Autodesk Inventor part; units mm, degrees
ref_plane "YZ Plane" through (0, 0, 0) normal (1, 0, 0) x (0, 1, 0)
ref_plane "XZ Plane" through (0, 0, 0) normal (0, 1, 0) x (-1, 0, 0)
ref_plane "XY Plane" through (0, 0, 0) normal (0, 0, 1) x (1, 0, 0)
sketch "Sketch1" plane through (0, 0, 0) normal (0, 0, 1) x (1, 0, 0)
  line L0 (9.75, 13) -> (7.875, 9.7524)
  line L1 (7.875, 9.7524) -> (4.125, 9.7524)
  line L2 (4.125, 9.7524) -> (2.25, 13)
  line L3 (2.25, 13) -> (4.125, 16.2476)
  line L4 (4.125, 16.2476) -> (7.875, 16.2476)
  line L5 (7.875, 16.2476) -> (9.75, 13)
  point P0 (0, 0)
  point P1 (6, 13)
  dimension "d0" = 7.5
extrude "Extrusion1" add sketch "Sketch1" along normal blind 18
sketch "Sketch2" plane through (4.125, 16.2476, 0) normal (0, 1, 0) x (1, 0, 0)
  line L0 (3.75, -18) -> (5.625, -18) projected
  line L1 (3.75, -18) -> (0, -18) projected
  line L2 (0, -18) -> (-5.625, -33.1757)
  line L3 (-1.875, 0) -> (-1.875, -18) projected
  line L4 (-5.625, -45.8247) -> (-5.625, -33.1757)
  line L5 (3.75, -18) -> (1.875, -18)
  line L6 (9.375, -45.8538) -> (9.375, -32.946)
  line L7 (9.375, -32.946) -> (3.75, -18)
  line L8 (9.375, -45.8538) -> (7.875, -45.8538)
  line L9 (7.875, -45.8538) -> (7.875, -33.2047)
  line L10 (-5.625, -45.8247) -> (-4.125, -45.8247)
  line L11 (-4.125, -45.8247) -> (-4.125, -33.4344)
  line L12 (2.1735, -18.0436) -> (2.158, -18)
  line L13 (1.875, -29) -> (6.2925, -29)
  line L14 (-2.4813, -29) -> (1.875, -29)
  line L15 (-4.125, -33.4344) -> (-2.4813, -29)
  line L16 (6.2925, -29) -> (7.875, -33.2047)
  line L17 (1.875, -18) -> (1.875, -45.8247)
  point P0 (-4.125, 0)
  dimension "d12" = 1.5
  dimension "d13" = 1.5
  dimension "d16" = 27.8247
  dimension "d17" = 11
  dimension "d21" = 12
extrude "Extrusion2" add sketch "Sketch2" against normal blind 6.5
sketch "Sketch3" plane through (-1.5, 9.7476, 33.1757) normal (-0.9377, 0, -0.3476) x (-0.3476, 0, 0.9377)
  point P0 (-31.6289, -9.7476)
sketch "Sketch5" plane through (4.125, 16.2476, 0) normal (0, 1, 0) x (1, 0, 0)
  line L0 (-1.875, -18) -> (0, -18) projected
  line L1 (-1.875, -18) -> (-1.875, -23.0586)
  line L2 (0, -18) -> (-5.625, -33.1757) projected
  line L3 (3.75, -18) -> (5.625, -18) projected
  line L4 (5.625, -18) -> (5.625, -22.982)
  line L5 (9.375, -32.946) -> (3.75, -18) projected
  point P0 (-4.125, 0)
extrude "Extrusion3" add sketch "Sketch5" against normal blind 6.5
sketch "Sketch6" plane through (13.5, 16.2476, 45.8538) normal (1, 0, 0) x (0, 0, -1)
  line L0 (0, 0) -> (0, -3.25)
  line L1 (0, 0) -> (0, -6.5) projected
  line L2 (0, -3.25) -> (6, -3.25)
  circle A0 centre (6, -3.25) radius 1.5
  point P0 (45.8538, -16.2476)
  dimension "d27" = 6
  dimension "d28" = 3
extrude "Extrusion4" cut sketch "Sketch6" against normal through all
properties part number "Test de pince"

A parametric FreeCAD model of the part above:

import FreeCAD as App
import Part
import Sketcher
Q = App.Units.Quantity

doc = App.newDocument("Part")
params = doc.addObject("Spreadsheet::Sheet", "Params")
for row, (alias, value) in enumerate([
    ("sketch1_width", "3.75 mm"),
    ("pad1_length", "18 mm"),
    ("sketch2_width", "1.5 mm"),
    ("sketch2_width2", "3.75 mm"),
    ("pad2_length", "6.5 mm"),
    ("pad3_length", "6.5 mm"),
    ("sketch4_diameter", "3 mm"),
], start=1):
    params.set(f"A{row}", alias)
    params.set(f"B{row}", "=" + value)
    params.setAlias(f"B{row}", alias)

body = doc.addObject("PartDesign::Body", "Body")

sketch1 = body.newObject("Sketcher::SketchObject", "Sketch")
sketch1.AttachmentSupport = (doc.getObject("XY_Plane"), [""])
sketch1.MapMode = "FlatFace"
sketch1.addGeometry([
    Part.LineSegment(App.Vector(7.875, 9.7524, 0), App.Vector(9.75, 13, 0)),
    Part.LineSegment(App.Vector(9.75, 13, 0), App.Vector(7.875, 16.2476, 0)),
    Part.LineSegment(App.Vector(7.875, 16.2476, 0), App.Vector(4.125, 16.2476, 0)),
    Part.LineSegment(App.Vector(4.125, 16.2476, 0), App.Vector(2.25, 13, 0)),
    Part.LineSegment(App.Vector(2.25, 13, 0), App.Vector(4.125, 9.7524, 0)),
    Part.LineSegment(App.Vector(4.125, 9.7524, 0), App.Vector(7.875, 9.7524, 0)),
], False)
sketch1.addConstraint([
    Sketcher.Constraint("Coincident", 0, 2, 1, 1),
    Sketcher.Constraint("Coincident", 1, 2, 2, 1),
    Sketcher.Constraint("Coincident", 2, 2, 3, 1),
    Sketcher.Constraint("Coincident", 3, 2, 4, 1),
    Sketcher.Constraint("Coincident", 4, 2, 5, 1),
    Sketcher.Constraint("Coincident", 5, 2, 0, 1),
    Sketcher.Constraint("Horizontal", 2),
    Sketcher.Constraint("Horizontal", 5),
    Sketcher.Constraint("Parallel", 0, 3),
    Sketcher.Constraint("Parallel", 1, 4),
    Sketcher.Constraint("Horizontal", 0, 2, 3, 2),
    Sketcher.Constraint("Vertical", 2, 2, 4, 2),
    Sketcher.Constraint("Vertical", 1, 2, 5, 2),
    Sketcher.Constraint("DistanceX", 3, 2, 0, 2, Q("7.5 mm")),
    Sketcher.Constraint("Angle", 0, Q("60 deg")),
    Sketcher.Constraint("DistanceY", -1, 1, 0, 2, Q("13 mm")),
    Sketcher.Constraint("DistanceX", 2, 2, 2, 1, Q("3.75 mm")),
    Sketcher.Constraint("DistanceX", -1, 1, 0, 2, Q("9.75 mm")),
])
sketch1.setExpression("Constraints[16]", "Params.sketch1_width")
pad1 = body.newObject("PartDesign::Pad", "Pad")
pad1.Profile = sketch1
pad1.setExpression("Length", "Params.pad1_length")

sketch2 = body.newObject("Sketcher::SketchObject", "Sketch001")
sketch2.AttachmentSupport = (doc.getObject("XZ_Plane"), [""])
sketch2.MapMode = "FlatFace"
sketch2.AttachmentOffset = App.Placement(App.Vector(0, 0, -16.2476), App.Rotation())
sketch2.addGeometry([
    Part.LineSegment(App.Vector(13.5, 32.946, 0), App.Vector(7.875, 18, 0)),
    Part.LineSegment(App.Vector(7.875, 18, 0), App.Vector(4.125, 18, 0)),
    Part.LineSegment(App.Vector(4.125, 18, 0), App.Vector(-1.5, 33.1757, 0)),
    Part.LineSegment(App.Vector(-1.5, 33.1757, 0), App.Vector(-1.5, 45.8247, 0)),
    Part.LineSegment(App.Vector(-1.5, 45.8247, 0), App.Vector(0, 45.8247, 0)),
    Part.LineSegment(App.Vector(0, 45.8247, 0), App.Vector(0, 33.4344, 0)),
    Part.LineSegment(App.Vector(0, 33.4344, 0), App.Vector(1.6437, 29, 0)),
    Part.LineSegment(App.Vector(1.6437, 29, 0), App.Vector(10.4175, 29, 0)),
    Part.LineSegment(App.Vector(10.4175, 29, 0), App.Vector(12, 33.2047, 0)),
    Part.LineSegment(App.Vector(12, 33.2047, 0), App.Vector(12, 45.8538, 0)),
    Part.LineSegment(App.Vector(12, 45.8538, 0), App.Vector(13.5, 45.8538, 0)),
    Part.LineSegment(App.Vector(13.5, 45.8538, 0), App.Vector(13.5, 32.946, 0)),
], False)
sketch2.addConstraint([
    Sketcher.Constraint("Coincident", 0, 2, 1, 1),
    Sketcher.Constraint("Coincident", 1, 2, 2, 1),
    Sketcher.Constraint("Coincident", 2, 2, 3, 1),
    Sketcher.Constraint("Coincident", 3, 2, 4, 1),
    Sketcher.Constraint("Coincident", 4, 2, 5, 1),
    Sketcher.Constraint("Coincident", 5, 2, 6, 1),
    Sketcher.Constraint("Coincident", 6, 2, 7, 1),
    Sketcher.Constraint("Coincident", 7, 2, 8, 1),
    Sketcher.Constraint("Coincident", 8, 2, 9, 1),
    Sketcher.Constraint("Coincident", 9, 2, 10, 1),
    Sketcher.Constraint("Coincident", 10, 2, 11, 1),
    Sketcher.Constraint("Coincident", 11, 2, 0, 1),
    Sketcher.Constraint("Horizontal", 1),
    Sketcher.Constraint("Vertical", 3),
    Sketcher.Constraint("Horizontal", 4),
    Sketcher.Constraint("Vertical", 5),
    Sketcher.Constraint("Horizontal", 7),
    Sketcher.Constraint("Vertical", 9),
    Sketcher.Constraint("Horizontal", 10),
    Sketcher.Constraint("Vertical", 11),
    Sketcher.Constraint("PointOnObject", 4, 2, -2),
    Sketcher.Constraint("Parallel", 2, 6),
    Sketcher.Constraint("Parallel", 0, 8),
    Sketcher.Constraint("Equal", 4, 10),
    Sketcher.Constraint("Equal", 3, 9),
    Sketcher.Constraint("DistanceX", 4, 1, 4, 2, Q("1.5 mm")),
    Sketcher.Constraint("DistanceX", -1, 1, 8, 2, Q("12 mm")),
    Sketcher.Constraint("DistanceY", 1, 2, 6, 2, Q("11 mm")),
    Sketcher.Constraint("DistanceY", -1, 1, 0, 2, Q("18 mm")),
    Sketcher.Constraint("DistanceX", 1, 2, 1, 1, Q("3.75 mm")),
    Sketcher.Constraint("DistanceY", 1, 2, 3, 2, Q("27.8247 mm")),
    Sketcher.Constraint("DistanceY", 3, 1, 3, 2, Q("12.649 mm")),
    Sketcher.Constraint("DistanceX", 7, 1, 7, 2, Q("8.7738 mm")),
    Sketcher.Constraint("DistanceY", 5, 2, 5, 1, Q("12.3903 mm")),
    Sketcher.Constraint("DistanceY", 11, 2, 11, 1, Q("12.9078 mm")),
    Sketcher.Constraint("DistanceX", -1, 1, 0, 2, Q("7.875 mm")),
])
sketch2.setExpression("Constraints[25]", "Params.sketch2_width")
sketch2.setExpression("Constraints[29]", "Params.sketch2_width2")
pad2 = body.newObject("PartDesign::Pad", "Pad001")
pad2.Profile = sketch2
pad2.setExpression("Length", "Params.pad2_length")

sketch3 = body.newObject("Sketcher::SketchObject", "Sketch002")
sketch3.AttachmentSupport = (doc.getObject("XZ_Plane"), [""])
sketch3.MapMode = "FlatFace"
sketch3.AttachmentOffset = App.Placement(App.Vector(0, 0, -16.2476), App.Rotation())
sketch3.addGeometry([
    Part.LineSegment(App.Vector(4.125, 18, 0), App.Vector(2.25, 18, 0)),
    Part.LineSegment(App.Vector(2.25, 18, 0), App.Vector(2.25, 23.0586, 0)),
    Part.LineSegment(App.Vector(2.249989, 23.058596, 0), App.Vector(4.125, 18, 0)),
    Part.LineSegment(App.Vector(9.75, 18, 0), App.Vector(7.875, 18, 0)),
    Part.LineSegment(App.Vector(7.875, 18, 0), App.Vector(9.75, 22.982, 0)),
    Part.LineSegment(App.Vector(9.75, 22.982, 0), App.Vector(9.75, 18, 0)),
], False)
sketch3.addConstraint([
    Sketcher.Constraint("Coincident", 0, 2, 1, 1),
    Sketcher.Constraint("Coincident", 1, 2, 2, 1),
    Sketcher.Constraint("Coincident", 2, 2, 0, 1),
    Sketcher.Constraint("Coincident", 3, 2, 4, 1),
    Sketcher.Constraint("Coincident", 4, 2, 5, 1),
    Sketcher.Constraint("Coincident", 5, 2, 3, 1),
    Sketcher.Constraint("Horizontal", 0),
    Sketcher.Constraint("Vertical", 1),
    Sketcher.Constraint("Horizontal", 3),
    Sketcher.Constraint("Vertical", 5),
    Sketcher.Constraint("Horizontal", 2, 2, 3, 2),
    Sketcher.Constraint("Equal", 0, 3),
    Sketcher.Constraint("DistanceY", -1, 1, 0, 2, Q("18 mm")),
    Sketcher.Constraint("DistanceX", 1, 2, 4, 2, Q("7.5 mm")),
    Sketcher.Constraint("DistanceX", 0, 2, 0, 1, Q("1.875 mm")),
    Sketcher.Constraint("DistanceY", 5, 2, 5, 1, Q("4.982 mm")),
    Sketcher.Constraint("DistanceX", -1, 1, 0, 2, Q("2.25 mm")),
    Sketcher.Constraint("Distance", 2, Q("5.395 mm")),
])
pad3 = body.newObject("PartDesign::Pad", "Pad002")
pad3.Profile = sketch3
pad3.setExpression("Length", "Params.pad3_length")

sketch4 = body.newObject("Sketcher::SketchObject", "Sketch003")
sketch4.AttachmentSupport = (doc.getObject("YZ_Plane"), [""])
sketch4.MapMode = "FlatFace"
sketch4.AttachmentOffset = App.Placement(App.Vector(0, 0, 13.5), App.Rotation())
sketch4.addGeometry(Part.Circle(App.Vector(12.9976, 39.8538, 0), App.Vector(0, 0, 1), 1.5), False)
sketch4.addConstraint([
    Sketcher.Constraint("Diameter", 0, Q("3 mm")),
    Sketcher.Constraint("DistanceX", -1, 1, 0, 3, Q("12.9976 mm")),
    Sketcher.Constraint("DistanceY", -1, 1, 0, 3, Q("39.8538 mm")),
])
sketch4.setExpression("Constraints[0]", "Params.sketch4_diameter")
pocket1 = body.newObject("PartDesign::Pocket", "Pocket")
pocket1.Profile = sketch4
pocket1.Type = "ThroughAll"

doc.recompute()
